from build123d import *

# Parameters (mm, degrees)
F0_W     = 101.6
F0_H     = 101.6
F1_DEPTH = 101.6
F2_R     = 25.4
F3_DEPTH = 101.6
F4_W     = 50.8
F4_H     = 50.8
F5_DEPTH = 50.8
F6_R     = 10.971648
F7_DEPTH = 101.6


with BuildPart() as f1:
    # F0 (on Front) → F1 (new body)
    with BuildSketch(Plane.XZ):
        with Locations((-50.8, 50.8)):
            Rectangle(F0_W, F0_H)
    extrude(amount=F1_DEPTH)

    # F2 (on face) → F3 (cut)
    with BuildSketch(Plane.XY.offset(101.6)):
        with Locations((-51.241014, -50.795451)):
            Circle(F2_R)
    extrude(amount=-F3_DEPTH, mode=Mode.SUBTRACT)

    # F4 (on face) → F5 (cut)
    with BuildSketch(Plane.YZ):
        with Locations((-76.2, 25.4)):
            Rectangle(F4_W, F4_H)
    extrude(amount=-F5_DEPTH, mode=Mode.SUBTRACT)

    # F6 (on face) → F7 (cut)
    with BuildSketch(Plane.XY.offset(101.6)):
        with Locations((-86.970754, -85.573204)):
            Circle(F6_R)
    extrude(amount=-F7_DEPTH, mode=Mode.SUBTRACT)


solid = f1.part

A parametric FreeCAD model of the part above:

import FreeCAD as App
import Part
import Sketcher
Q = App.Units.Quantity


def add_polygon(sketch, points):
    """Adds a closed chain of lines whose ends are joined by coincident constraints."""
    first, n = sketch.GeometryCount, len(points)
    for a, b in zip(points, points[1:] + points[:1]):
        sketch.addGeometry(Part.LineSegment(App.Vector(*a, 0), App.Vector(*b, 0)), False)
    for i in range(n):
        sketch.addConstraint(Sketcher.Constraint("Coincident", first + i, 2, first + (i + 1) % n, 1))

doc = App.newDocument("Part")
body = doc.addObject("PartDesign::Body", "Body")

# Sketch on XZ plane
sketch1 = doc.addObject("Sketcher::SketchObject", "Sketch")
body.addObject(sketch1)
sketch1.AttachmentSupport = (doc.XZ_Plane, [""])
sketch1.MapMode = "FlatFace"
add_polygon(sketch1, [(-101.6, 101.6), (-101.6, 0), (0, 0), (0, 101.6)])  # lines 0-3
sketch1.addConstraint(Sketcher.Constraint("Vertical", 0))
sketch1.addConstraint(Sketcher.Constraint("Horizontal", 1))
sketch1.addConstraint(Sketcher.Constraint("Vertical", 2))
sketch1.addConstraint(Sketcher.Constraint("Horizontal", 3))
sketch1.addConstraint(Sketcher.Constraint("Coincident", 1, 2, -1, 1))
sketch1.addConstraint(Sketcher.Constraint("Equal", 3, 0))
sketch1.addConstraint(Sketcher.Constraint("DistanceX", 1, 1, 1, 2, Q("4 in")))
pad1 = doc.addObject("PartDesign::Pad", "Pad")
body.addObject(pad1)
pad1.Profile = sketch1
pad1.Length = Q("4 in")

# Sketch on XY plane
sketch2 = doc.addObject("Sketcher::SketchObject", "Sketch001")
body.addObject(sketch2)
sketch2.AttachmentSupport = (doc.XY_Plane, [""])
sketch2.MapMode = "FlatFace"
sketch2.AttachmentOffset = App.Placement(App.Vector(0, 0, 4 * 25.4), App.Rotation())
sketch2.addGeometry(Part.Circle(App.Vector(-51.241014, -50.795451, 0), App.Vector(0, 0, 1), 25.4), False)
sketch2.addConstraint(Sketcher.Constraint("Diameter", 0, Q("2 in")))
sketch2.addConstraint(Sketcher.Constraint("DistanceY", 0, 3, -1, 1, Q("50.795451 mm")))
sketch2.addConstraint(Sketcher.Constraint("DistanceX", 0, 3, -1, 1, Q("51.241014 mm")))
pocket1 = doc.addObject("PartDesign::Pocket", "Pocket")
body.addObject(pocket1)
pocket1.Profile = sketch2
pocket1.Length = Q("4 in")

# Sketch on YZ plane
sketch3 = doc.addObject("Sketcher::SketchObject", "Sketch002")
body.addObject(sketch3)
sketch3.AttachmentSupport = (doc.YZ_Plane, [""])
sketch3.MapMode = "FlatFace"
add_polygon(sketch3, [(-101.6, 50.8), (-101.6, 0), (-50.8, 0), (-50.8, 50.8)])  # lines 0-3
sketch3.addConstraint(Sketcher.Constraint("Vertical", 0))
sketch3.addConstraint(Sketcher.Constraint("Horizontal", 1))
sketch3.addConstraint(Sketcher.Constraint("Vertical", 2))
sketch3.addConstraint(Sketcher.Constraint("Horizontal", 3))
sketch3.addConstraint(Sketcher.Constraint("PointOnObject", 0, 2, -1))
sketch3.addConstraint(Sketcher.Constraint("Equal", 3, 0))
sketch3.addConstraint(Sketcher.Constraint("DistanceX", 1, 1, 1, 2, Q("2 in")))
sketch3.addConstraint(Sketcher.Constraint("DistanceX", 0, 2, -1, 1, Q("4 in")))
pocket2 = doc.addObject("PartDesign::Pocket", "Pocket001")
body.addObject(pocket2)
pocket2.Profile = sketch3
pocket2.Length = Q("2 in")

# Sketch on XY plane
sketch4 = doc.addObject("Sketcher::SketchObject", "Sketch003")
body.addObject(sketch4)
sketch4.AttachmentSupport = (doc.XY_Plane, [""])
sketch4.MapMode = "FlatFace"
sketch4.AttachmentOffset = App.Placement(App.Vector(0, 0, 4 * 25.4), App.Rotation())
sketch4.addGeometry(Part.Circle(App.Vector(-86.970754, -85.573204, 0), App.Vector(0, 0, 1), 10.971648), False)
sketch4.addConstraint(Sketcher.Constraint("Diameter", 0, Q("21.943296 mm")))
sketch4.addConstraint(Sketcher.Constraint("DistanceX", 0, 3, -1, 1, Q("86.970754 mm")))
sketch4.addConstraint(Sketcher.Constraint("DistanceY", 0, 3, -1, 1, Q("85.573204 mm")))
pocket3 = doc.addObject("PartDesign::Pocket", "Pocket002")
body.addObject(pocket3)
pocket3.Profile = sketch4
pocket3.Length = Q("4 in")

doc.recompute()
